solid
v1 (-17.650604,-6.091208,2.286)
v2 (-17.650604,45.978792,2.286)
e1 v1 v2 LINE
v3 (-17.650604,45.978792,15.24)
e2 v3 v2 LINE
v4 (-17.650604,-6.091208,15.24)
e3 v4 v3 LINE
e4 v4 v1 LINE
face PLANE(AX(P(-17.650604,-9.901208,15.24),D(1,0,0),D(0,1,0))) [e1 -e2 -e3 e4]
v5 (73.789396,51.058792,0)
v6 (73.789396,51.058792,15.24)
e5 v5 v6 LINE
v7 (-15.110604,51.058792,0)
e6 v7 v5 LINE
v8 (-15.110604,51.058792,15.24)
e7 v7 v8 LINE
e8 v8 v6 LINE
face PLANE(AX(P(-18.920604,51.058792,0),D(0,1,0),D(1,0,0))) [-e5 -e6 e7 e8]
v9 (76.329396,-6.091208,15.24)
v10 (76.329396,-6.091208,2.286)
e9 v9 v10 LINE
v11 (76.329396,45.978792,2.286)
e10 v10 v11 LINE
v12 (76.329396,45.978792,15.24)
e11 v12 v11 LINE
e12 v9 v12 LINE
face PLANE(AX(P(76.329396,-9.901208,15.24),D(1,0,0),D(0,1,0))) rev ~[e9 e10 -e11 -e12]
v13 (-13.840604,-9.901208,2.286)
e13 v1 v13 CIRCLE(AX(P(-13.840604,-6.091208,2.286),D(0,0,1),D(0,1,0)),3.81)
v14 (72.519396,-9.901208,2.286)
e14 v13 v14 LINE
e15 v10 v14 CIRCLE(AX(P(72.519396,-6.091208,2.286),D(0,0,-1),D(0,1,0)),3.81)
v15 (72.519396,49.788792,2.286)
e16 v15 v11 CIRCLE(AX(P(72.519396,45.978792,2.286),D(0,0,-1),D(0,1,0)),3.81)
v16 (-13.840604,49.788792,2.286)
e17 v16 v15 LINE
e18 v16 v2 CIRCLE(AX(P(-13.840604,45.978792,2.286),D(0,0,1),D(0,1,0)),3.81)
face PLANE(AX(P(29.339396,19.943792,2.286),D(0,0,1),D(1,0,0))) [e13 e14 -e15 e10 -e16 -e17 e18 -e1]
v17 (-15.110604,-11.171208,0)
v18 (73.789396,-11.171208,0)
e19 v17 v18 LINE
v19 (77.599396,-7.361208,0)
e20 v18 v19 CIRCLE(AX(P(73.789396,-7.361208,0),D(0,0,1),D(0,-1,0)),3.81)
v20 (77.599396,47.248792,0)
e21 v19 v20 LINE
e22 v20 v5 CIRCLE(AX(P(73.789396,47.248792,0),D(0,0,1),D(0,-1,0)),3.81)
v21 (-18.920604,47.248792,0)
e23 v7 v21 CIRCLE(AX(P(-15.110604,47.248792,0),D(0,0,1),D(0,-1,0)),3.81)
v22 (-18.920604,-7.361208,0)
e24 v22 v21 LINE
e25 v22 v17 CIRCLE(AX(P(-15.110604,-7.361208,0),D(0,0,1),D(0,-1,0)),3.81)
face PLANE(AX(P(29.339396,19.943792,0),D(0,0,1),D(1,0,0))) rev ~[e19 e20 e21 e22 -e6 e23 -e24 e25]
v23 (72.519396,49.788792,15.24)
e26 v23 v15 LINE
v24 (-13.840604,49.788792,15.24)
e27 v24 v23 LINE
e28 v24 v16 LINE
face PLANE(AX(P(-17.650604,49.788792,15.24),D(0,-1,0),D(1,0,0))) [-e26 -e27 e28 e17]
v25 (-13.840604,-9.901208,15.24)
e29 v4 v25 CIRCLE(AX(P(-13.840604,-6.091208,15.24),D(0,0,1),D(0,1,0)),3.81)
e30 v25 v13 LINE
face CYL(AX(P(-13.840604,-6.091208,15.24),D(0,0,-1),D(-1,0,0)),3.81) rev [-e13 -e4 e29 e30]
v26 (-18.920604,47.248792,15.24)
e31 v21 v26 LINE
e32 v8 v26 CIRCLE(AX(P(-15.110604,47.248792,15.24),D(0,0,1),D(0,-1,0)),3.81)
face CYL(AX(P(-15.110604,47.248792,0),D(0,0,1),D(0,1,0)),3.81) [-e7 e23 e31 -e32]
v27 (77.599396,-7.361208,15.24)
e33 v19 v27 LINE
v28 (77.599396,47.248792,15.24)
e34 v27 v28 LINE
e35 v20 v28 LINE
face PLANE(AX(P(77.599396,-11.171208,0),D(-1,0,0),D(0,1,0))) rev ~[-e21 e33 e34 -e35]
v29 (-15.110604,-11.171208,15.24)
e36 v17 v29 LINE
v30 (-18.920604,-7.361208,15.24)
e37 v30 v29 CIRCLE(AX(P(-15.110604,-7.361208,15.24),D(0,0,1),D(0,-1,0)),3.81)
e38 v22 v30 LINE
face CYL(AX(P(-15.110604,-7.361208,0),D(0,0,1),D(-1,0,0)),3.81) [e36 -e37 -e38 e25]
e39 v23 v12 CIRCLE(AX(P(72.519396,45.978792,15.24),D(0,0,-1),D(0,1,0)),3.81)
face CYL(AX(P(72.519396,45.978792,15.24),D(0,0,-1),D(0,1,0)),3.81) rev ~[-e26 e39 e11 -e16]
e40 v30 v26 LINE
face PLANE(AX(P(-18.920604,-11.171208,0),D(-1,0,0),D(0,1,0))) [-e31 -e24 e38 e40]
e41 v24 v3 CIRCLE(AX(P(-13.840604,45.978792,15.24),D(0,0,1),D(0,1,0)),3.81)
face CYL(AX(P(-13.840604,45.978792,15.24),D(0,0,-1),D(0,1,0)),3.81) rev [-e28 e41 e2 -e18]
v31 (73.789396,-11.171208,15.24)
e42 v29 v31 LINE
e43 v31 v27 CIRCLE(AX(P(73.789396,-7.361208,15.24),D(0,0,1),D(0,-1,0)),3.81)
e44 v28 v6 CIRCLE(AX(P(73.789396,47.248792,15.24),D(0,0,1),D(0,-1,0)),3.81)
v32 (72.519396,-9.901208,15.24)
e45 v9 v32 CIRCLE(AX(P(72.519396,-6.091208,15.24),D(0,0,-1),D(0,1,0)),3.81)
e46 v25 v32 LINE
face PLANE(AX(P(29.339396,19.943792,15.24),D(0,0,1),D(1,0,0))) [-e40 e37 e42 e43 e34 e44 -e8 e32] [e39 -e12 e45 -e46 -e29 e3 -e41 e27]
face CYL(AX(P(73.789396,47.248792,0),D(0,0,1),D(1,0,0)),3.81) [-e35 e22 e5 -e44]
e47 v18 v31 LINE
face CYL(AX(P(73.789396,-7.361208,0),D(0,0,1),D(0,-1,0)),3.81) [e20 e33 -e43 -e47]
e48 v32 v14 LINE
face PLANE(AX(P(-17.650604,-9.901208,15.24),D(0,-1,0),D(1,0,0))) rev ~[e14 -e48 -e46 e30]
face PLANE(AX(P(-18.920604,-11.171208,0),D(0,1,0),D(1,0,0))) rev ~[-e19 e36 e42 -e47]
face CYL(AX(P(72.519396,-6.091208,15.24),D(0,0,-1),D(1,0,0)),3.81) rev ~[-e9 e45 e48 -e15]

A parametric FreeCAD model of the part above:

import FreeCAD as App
import Part
import Sketcher
Q = App.Units.Quantity


def edges_at(feature, points):
    """Names of the edges that pass closest to the given points."""
    edges = feature.Shape.Edges
    near = lambda p: min(range(len(edges)), key=lambda i: edges[i].distToShape(Part.Vertex(*p))[0])
    return sorted({f"Edge{near(p) + 1}" for p in points})


def add_polygon(sketch, points):
    """Adds a closed chain of lines whose ends are joined by coincident constraints."""
    first, n = sketch.GeometryCount, len(points)
    for a, b in zip(points, points[1:] + points[:1]):
        sketch.addGeometry(Part.LineSegment(App.Vector(*a, 0), App.Vector(*b, 0)), False)
    for i in range(n):
        sketch.addConstraint(Sketcher.Constraint("Coincident", first + i, 2, first + (i + 1) % n, 1))

doc = App.newDocument("Part")
body = doc.addObject("PartDesign::Body", "Body")

sketch1 = doc.addObject("Sketcher::SketchObject", "Sketch")
body.addObject(sketch1)
sketch1.AttachmentSupport = (doc.XY_Plane, [""])
sketch1.MapMode = "FlatFace"
add_polygon(sketch1, [(-19, 51), (-19, -11), (78, -11), (78, 51)])
sketch1.addConstraint([
    Sketcher.Constraint("Vertical", 0),
    Sketcher.Constraint("Horizontal", 1),
    Sketcher.Constraint("Vertical", 2),
    Sketcher.Constraint("Horizontal", 3),
    Sketcher.Constraint("DistanceX", 1, 1, 1, 2, Q("3.8 in")),
    Sketcher.Constraint("DistanceY", 0, 2, 0, 1, Q("2.45 in")),
    Sketcher.Constraint("DistanceY", -1, 1, 2, 2, Q("51.058792 mm")),
    Sketcher.Constraint("DistanceX", 0, 2, -1, 1, Q("18.920604 mm")),
])
pad1 = doc.addObject("PartDesign::Pad", "Pad")
body.addObject(pad1)
pad1.Profile = sketch1
pad1.Length = Q("0.6 in")
doc.recompute()

fillet = doc.addObject("PartDesign::Fillet", "Fillet")
body.addObject(fillet)
fillet.Base = (pad1, edges_at(pad1, [(-18.921, -11.171, 7.62)]))
fillet.Radius = Q("0.15 in")
doc.recompute()

fillet2 = doc.addObject("PartDesign::Fillet", "Fillet001")
body.addObject(fillet2)
fillet2.Base = (fillet, edges_at(fillet, [(77.599, -11.171, 7.62)]))
fillet2.Radius = Q("0.15 in")
doc.recompute()

fillet3 = doc.addObject("PartDesign::Fillet", "Fillet002")
body.addObject(fillet3)
fillet3.Base = (fillet2, edges_at(fillet2, [(77.599, 51.059, 7.62)]))
fillet3.Radius = Q("0.15 in")
doc.recompute()

fillet4 = doc.addObject("PartDesign::Fillet", "Fillet003")
body.addObject(fillet4)
fillet4.Base = (fillet3, edges_at(fillet3, [(-18.921, 51.059, 7.62)]))
fillet4.Radius = Q("0.15 in")

sketch2 = doc.addObject("Sketcher::SketchObject", "Sketch001")
body.addObject(sketch2)
sketch2.AttachmentSupport = (doc.XY_Plane, [""])
sketch2.MapMode = "FlatFace"
sketch2.AttachmentOffset = App.Placement(App.Vector(0, 0, 0.6 * 25.4), App.Rotation())
add_polygon(sketch2, [(-18, 50), (-18, -10), (76, -10), (76, 50)])
sketch2.addConstraint([
    Sketcher.Constraint("Vertical", 0),
    Sketcher.Constraint("Horizontal", 1),
    Sketcher.Constraint("Vertical", 2),
    Sketcher.Constraint("Horizontal", 3),
    Sketcher.Constraint("DistanceX", 1, 1, 1, 2, Q("3.7 in")),
    Sketcher.Constraint("DistanceY", 0, 2, 0, 1, Q("2.35 in")),
    Sketcher.Constraint("DistanceX", 0, 2, -1, 1, Q("17.650604 mm")),
    Sketcher.Constraint("DistanceY", 0, 2, -1, 1, Q("9.901208 mm")),
])
pocket1 = doc.addObject("PartDesign::Pocket", "Pocket")
body.addObject(pocket1)
pocket1.Profile = sketch2
pocket1.Length = Q("0.51 in")
doc.recompute()

fillet5 = doc.addObject("PartDesign::Fillet", "Fillet004")
body.addObject(fillet5)
fillet5.Base = (pocket1, edges_at(pocket1, [(-17.651, 49.789, 8.763)]))
fillet5.Radius = Q("0.15 in")
doc.recompute()

fillet6 = doc.addObject("PartDesign::Fillet", "Fillet005")
body.addObject(fillet6)
fillet6.Base = (fillet5, edges_at(fillet5, [(76.329, 49.789, 8.763), (-17.651, -9.901, 8.763), (76.329, -9.901, 8.763)]))
fillet6.Radius = Q("0.15 in")

doc.recompute()
